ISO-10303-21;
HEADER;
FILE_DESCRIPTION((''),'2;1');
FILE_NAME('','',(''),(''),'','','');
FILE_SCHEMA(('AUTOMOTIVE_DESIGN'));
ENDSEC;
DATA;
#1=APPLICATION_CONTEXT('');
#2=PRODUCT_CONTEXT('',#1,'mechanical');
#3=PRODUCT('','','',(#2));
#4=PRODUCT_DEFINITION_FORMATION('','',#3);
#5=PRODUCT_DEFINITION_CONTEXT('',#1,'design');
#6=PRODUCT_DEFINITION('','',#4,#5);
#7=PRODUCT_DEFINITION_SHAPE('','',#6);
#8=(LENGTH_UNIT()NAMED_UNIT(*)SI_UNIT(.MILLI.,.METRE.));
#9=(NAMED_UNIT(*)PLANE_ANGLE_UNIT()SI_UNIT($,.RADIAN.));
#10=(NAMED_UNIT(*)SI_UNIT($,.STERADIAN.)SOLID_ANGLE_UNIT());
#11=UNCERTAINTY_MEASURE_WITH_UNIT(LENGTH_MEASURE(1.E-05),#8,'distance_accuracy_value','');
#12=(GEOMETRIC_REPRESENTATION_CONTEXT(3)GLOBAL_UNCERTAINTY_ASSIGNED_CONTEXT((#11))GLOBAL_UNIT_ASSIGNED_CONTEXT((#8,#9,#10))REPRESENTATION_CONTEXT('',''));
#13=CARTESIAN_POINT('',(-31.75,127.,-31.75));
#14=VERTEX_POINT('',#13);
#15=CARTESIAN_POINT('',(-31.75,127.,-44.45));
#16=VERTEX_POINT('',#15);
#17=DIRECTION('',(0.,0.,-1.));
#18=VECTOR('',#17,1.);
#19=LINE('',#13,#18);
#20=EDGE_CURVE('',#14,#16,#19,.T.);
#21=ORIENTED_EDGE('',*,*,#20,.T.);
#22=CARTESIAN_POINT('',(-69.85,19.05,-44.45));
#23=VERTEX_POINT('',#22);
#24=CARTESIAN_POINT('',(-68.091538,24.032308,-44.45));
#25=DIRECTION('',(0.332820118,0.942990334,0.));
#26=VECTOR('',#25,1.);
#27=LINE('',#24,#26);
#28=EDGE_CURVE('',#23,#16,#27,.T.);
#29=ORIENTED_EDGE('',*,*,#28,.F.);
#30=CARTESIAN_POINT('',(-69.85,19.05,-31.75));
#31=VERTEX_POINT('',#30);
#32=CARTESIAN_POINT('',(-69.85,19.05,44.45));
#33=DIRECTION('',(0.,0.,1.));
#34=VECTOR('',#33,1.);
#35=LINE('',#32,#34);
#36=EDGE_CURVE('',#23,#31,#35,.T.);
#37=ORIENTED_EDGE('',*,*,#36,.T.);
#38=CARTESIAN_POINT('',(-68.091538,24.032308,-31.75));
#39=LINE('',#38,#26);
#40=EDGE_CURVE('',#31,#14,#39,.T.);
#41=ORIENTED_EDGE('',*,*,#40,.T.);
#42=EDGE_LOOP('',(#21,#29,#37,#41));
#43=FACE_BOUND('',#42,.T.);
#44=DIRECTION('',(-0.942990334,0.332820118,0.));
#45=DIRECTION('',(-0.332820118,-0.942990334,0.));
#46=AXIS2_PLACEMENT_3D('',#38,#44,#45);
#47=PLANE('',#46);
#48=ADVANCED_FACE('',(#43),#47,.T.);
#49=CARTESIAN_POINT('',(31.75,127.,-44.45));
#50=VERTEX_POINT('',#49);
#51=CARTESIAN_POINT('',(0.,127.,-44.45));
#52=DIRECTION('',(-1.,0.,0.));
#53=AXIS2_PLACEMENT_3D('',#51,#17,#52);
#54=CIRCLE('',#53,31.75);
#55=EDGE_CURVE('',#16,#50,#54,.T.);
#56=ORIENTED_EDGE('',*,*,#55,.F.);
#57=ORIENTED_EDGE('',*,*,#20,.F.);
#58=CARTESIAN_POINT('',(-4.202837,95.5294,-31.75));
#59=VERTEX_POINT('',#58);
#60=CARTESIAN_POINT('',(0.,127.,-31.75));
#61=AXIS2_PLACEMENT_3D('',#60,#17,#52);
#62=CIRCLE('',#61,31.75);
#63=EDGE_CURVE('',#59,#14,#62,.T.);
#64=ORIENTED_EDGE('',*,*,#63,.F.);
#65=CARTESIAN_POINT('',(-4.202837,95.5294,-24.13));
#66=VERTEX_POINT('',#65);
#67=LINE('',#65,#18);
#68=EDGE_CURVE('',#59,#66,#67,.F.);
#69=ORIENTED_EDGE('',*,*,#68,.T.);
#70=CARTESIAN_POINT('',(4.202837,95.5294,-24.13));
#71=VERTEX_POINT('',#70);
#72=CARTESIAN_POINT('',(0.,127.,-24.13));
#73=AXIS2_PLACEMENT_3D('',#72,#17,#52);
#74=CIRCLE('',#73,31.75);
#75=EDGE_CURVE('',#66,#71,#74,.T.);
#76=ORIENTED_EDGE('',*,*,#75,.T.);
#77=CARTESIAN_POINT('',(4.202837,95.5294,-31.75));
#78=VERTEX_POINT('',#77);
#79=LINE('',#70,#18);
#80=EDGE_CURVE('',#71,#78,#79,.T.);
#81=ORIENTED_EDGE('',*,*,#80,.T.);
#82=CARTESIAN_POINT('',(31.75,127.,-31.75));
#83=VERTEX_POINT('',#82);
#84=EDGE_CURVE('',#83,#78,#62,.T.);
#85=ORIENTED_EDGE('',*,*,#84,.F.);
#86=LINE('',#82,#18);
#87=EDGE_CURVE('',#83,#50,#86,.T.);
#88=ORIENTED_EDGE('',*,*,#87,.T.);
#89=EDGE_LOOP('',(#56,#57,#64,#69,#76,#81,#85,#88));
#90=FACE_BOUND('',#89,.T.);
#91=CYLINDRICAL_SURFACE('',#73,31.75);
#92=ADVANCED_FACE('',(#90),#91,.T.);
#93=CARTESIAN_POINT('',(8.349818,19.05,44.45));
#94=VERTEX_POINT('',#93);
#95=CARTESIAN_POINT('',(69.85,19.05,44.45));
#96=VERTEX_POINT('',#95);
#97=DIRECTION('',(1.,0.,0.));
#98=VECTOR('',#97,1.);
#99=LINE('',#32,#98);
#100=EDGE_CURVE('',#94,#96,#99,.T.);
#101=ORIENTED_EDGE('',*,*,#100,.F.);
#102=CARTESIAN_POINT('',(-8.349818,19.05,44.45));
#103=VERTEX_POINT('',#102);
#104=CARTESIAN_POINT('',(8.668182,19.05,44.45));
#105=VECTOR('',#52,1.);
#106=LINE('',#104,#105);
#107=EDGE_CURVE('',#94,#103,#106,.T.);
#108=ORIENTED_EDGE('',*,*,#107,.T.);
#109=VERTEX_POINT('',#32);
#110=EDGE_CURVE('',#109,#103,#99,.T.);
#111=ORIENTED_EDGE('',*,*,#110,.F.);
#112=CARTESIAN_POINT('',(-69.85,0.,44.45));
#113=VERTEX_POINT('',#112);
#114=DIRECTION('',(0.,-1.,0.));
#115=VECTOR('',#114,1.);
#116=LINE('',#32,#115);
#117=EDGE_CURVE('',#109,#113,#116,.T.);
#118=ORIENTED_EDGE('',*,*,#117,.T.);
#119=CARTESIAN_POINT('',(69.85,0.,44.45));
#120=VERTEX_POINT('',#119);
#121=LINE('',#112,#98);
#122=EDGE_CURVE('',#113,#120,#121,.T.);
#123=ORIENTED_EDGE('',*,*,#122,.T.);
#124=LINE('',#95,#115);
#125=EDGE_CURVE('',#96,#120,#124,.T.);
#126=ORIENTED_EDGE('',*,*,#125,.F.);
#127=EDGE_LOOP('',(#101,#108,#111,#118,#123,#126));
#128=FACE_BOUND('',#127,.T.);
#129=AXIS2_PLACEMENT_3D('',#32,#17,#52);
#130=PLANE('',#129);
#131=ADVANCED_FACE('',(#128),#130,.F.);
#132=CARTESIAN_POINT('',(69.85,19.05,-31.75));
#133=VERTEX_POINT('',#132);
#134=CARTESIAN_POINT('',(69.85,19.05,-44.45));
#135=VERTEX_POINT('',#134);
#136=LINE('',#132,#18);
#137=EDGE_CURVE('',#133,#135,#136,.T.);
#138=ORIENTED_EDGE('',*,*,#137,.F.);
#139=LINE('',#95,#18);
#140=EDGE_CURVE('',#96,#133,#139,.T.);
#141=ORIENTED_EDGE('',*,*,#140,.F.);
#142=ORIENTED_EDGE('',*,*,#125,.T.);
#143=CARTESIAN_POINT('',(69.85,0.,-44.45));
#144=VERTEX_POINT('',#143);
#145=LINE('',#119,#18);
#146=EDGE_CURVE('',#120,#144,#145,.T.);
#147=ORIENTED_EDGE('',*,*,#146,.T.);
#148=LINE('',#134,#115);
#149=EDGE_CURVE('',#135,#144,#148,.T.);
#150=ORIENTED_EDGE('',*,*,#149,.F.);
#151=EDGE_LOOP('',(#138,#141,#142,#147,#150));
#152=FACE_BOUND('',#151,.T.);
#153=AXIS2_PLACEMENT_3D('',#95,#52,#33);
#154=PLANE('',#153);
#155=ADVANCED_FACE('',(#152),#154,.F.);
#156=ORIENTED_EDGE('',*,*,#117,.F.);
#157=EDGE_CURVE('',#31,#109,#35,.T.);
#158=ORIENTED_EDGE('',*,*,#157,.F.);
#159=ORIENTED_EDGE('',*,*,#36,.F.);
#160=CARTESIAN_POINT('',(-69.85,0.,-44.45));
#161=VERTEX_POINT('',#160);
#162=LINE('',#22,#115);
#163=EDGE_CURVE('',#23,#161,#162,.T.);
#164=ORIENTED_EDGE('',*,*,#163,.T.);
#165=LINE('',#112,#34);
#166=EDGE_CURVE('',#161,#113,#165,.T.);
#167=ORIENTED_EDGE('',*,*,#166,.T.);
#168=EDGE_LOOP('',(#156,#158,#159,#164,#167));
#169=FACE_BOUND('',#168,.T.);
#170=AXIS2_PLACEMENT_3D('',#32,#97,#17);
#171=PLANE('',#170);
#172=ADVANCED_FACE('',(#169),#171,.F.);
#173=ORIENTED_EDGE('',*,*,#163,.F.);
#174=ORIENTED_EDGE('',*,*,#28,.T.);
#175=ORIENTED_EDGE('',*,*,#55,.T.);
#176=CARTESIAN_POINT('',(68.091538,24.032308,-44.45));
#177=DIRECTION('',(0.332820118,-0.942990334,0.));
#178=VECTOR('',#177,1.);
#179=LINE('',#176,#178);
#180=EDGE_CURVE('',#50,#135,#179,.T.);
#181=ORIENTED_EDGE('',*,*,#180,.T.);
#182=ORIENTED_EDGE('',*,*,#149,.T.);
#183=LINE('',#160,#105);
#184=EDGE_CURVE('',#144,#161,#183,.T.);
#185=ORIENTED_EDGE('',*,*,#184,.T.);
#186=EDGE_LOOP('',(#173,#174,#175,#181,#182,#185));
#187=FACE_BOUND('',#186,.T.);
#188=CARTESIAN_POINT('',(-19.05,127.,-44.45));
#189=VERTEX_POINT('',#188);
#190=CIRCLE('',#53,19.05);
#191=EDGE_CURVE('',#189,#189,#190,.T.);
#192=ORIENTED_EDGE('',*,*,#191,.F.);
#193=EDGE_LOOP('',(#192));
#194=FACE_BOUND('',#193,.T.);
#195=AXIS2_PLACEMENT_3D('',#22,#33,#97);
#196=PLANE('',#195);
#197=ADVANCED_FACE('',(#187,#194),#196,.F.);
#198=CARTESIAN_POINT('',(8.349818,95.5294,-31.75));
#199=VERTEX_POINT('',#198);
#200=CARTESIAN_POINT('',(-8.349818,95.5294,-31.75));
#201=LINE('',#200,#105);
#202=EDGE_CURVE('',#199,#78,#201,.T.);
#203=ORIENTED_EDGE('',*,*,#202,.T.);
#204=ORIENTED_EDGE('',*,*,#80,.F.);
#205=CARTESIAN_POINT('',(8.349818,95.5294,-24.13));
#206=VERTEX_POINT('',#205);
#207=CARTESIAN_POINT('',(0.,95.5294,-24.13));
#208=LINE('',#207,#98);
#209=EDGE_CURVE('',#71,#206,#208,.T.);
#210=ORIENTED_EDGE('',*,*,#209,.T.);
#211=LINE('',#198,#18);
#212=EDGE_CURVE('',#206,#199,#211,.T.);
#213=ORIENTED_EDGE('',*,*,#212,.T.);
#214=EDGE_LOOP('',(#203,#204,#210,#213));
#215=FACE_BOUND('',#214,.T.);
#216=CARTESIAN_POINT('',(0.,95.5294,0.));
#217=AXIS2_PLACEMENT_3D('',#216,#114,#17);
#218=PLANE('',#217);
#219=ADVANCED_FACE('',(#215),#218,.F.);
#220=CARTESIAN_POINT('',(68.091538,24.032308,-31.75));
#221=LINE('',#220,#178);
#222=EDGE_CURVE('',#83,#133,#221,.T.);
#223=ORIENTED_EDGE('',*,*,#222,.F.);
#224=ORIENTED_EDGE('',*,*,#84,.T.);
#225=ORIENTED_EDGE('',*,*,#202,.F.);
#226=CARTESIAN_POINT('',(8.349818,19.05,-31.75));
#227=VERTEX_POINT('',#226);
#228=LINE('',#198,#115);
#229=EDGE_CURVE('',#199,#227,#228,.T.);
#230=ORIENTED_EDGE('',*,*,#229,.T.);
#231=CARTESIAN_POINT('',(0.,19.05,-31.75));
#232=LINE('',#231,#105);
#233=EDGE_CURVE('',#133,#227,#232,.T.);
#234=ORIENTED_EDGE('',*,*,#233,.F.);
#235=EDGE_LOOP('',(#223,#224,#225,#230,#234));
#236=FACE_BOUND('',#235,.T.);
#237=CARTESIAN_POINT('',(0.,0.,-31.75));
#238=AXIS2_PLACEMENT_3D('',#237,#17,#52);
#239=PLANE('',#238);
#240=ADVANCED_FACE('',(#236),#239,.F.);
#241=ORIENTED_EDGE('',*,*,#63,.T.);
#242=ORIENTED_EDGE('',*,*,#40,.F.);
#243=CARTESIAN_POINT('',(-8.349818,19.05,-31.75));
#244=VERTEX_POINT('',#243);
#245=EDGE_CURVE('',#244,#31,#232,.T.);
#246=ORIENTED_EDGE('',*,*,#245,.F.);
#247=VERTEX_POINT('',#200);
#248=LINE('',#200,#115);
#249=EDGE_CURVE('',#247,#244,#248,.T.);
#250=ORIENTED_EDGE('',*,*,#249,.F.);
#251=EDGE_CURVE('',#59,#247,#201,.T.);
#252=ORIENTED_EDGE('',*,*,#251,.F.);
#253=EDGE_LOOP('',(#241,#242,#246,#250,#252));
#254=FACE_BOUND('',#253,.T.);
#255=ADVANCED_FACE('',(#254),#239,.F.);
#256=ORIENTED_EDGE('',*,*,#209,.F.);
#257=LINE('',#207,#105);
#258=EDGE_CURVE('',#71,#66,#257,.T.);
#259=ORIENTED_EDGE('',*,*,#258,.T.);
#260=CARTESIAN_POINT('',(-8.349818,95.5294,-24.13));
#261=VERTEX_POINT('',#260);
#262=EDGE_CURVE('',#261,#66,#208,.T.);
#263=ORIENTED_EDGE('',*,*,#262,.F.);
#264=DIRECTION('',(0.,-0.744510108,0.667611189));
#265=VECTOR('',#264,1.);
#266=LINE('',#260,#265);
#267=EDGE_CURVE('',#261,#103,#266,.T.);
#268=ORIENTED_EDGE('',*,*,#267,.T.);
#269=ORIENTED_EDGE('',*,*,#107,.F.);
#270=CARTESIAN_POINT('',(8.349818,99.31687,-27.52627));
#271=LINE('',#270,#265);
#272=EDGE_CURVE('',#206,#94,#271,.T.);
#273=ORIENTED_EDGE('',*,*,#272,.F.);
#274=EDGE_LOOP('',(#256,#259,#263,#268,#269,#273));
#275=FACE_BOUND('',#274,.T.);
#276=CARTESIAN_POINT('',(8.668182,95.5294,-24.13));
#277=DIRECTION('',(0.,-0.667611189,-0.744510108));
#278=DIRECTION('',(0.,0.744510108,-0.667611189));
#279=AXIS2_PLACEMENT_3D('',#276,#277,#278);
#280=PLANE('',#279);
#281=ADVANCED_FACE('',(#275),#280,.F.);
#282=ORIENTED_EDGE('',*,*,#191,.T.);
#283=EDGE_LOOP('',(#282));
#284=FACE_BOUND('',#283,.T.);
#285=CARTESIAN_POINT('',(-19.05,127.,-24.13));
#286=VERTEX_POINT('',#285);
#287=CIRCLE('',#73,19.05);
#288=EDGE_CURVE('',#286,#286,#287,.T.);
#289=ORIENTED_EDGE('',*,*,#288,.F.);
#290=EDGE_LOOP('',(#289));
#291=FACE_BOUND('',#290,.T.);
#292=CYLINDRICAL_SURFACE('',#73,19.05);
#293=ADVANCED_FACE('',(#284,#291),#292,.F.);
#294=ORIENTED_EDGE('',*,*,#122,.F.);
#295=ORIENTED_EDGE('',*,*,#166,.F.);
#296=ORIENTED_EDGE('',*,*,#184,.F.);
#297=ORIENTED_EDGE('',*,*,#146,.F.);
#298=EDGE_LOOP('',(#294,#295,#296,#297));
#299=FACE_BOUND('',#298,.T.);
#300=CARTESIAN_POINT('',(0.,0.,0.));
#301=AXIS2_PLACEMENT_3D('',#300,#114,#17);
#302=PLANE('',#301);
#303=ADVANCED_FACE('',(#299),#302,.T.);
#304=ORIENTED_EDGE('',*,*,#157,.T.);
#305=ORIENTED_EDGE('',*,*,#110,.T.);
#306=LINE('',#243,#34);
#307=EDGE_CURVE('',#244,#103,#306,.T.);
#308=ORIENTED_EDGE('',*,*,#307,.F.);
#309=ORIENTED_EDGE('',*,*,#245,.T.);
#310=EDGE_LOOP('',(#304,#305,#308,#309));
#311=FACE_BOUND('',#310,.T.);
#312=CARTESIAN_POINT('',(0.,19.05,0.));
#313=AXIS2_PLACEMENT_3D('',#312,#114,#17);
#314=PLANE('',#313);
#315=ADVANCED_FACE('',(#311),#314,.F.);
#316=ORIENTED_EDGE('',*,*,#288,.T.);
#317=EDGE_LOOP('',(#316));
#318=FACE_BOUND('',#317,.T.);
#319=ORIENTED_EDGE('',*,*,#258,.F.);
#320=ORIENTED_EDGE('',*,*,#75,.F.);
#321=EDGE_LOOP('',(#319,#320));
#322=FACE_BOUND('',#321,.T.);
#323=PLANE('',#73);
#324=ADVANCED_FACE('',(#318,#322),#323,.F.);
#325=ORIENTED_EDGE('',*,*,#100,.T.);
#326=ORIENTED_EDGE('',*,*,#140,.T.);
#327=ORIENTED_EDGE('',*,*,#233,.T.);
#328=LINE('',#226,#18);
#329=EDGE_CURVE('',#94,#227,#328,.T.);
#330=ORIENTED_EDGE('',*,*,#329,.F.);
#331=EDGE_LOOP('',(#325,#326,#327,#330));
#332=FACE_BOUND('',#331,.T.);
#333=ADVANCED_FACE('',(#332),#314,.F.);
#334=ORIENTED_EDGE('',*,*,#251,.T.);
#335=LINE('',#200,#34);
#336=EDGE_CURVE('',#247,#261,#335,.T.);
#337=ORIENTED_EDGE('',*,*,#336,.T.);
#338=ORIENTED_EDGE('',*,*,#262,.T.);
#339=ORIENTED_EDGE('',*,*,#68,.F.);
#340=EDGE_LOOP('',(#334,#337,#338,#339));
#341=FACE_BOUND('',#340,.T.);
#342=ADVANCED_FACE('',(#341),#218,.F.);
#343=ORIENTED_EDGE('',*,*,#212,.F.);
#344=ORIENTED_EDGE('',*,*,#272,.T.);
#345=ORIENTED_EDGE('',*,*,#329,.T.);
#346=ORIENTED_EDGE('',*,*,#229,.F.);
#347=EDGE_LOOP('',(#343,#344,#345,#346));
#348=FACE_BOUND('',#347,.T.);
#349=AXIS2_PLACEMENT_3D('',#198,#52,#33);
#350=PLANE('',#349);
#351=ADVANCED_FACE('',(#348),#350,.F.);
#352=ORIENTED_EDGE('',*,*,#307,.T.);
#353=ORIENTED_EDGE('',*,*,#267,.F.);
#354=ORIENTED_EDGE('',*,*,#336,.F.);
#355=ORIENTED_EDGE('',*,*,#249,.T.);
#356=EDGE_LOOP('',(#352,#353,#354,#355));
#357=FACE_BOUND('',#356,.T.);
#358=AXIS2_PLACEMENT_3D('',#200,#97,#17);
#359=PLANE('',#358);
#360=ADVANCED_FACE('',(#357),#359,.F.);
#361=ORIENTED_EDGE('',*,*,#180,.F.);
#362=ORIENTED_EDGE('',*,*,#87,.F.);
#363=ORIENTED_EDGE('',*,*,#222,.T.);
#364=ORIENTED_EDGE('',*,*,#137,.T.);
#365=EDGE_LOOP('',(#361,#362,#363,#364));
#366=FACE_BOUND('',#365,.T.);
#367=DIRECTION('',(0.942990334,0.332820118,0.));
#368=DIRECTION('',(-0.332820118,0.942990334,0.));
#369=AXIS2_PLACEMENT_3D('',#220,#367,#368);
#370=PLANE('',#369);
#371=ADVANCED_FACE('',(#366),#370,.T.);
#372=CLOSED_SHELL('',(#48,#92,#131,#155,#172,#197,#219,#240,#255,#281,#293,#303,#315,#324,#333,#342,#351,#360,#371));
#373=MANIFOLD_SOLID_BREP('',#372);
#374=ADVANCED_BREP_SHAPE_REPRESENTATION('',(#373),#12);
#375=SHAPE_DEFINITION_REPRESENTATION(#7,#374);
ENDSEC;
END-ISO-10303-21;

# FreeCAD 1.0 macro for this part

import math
import FreeCAD as App
import Part
import Sketcher
from FreeCAD import Vector
Q = App.Units.Quantity


def add_polygon(sketch, points):
    """Adds a closed chain of lines whose ends are joined by coincident constraints."""
    first, n = sketch.GeometryCount, len(points)
    for a, b in zip(points, points[1:] + points[:1]):
        sketch.addGeometry(Part.LineSegment(App.Vector(*a, 0), App.Vector(*b, 0)), False)
    for i in range(n):
        sketch.addConstraint(Sketcher.Constraint("Coincident", first + i, 2, first + (i + 1) % n, 1))

doc = App.newDocument("Part")
body = doc.addObject("PartDesign::Body", "Body")

# Sketch on XZ plane
sketch1 = doc.addObject("Sketcher::SketchObject", "Sketch")
body.addObject(sketch1)
sketch1.AttachmentSupport = (doc.XZ_Plane, [""])
sketch1.MapMode = "FlatFace"
add_polygon(sketch1, [(-70, -44), (-70, 44), (70, 44), (70, -44)])  # lines 0-3
sketch1.addConstraint(Sketcher.Constraint("Vertical", 0))
sketch1.addConstraint(Sketcher.Constraint("Horizontal", 1))
sketch1.addConstraint(Sketcher.Constraint("Vertical", 2))
sketch1.addConstraint(Sketcher.Constraint("Horizontal", 3))
sketch1.addConstraint(Sketcher.Constraint("Symmetric", 0, 2, 2, 2, -1, 1))
sketch1.addConstraint(Sketcher.Constraint("DistanceX", 1, 1, 1, 2, Q("5.5 in")))
sketch1.addConstraint(Sketcher.Constraint("DistanceY", 0, 1, 0, 2, Q("3.5 in")))
pad1 = doc.addObject("PartDesign::Pad", "Pad")
body.addObject(pad1)
pad1.Profile = sketch1
pad1.Length = Q("0.75 in")
pad1.Reversed = True
body2 = doc.addObject("PartDesign::Body", "Body001")

# Sketch on XY plane
sketch2 = doc.addObject("Sketcher::SketchObject", "Sketch001")
body2.addObject(sketch2)
sketch2.AttachmentSupport = (doc.getObject("XY_Plane001"), [""])
sketch2.MapMode = "FlatFace"
sketch2.AttachmentOffset = App.Placement(Vector(0, 0, -1.75 * 25.4), App.Rotation())
sketch2.addGeometry(Part.Circle(Vector(0, 127, 0), Vector(0, 0, 1), 32), False)
sketch2.addGeometry(Part.Circle(Vector(0, 127, 0), Vector(0, 0, 1), 19), False)
sketch2.addConstraint(Sketcher.Constraint("Coincident", 1, 3, 0, 3))
sketch2.addConstraint(Sketcher.Constraint("PointOnObject", 0, 3, -2))
sketch2.addConstraint(Sketcher.Constraint("Diameter", 0, Q("2.5 in")))
sketch2.addConstraint(Sketcher.Constraint("Diameter", 1, Q("1.5 in")))
sketch2.addConstraint(Sketcher.Constraint("DistanceY", -1, 1, 0, 3, Q("5 in")))
pad2 = doc.addObject("PartDesign::Pad", "Pad001")
body2.addObject(pad2)
pad2.Profile = sketch2
pad2.Length = Q("0.8 in")
body.AllowCompound = True
doc.recompute()

boolean = doc.addObject("PartDesign::Boolean", "Boolean")
body.addObject(boolean)
boolean.Type = "Fuse"
boolean.addObjects([body2])

# Sketch on XY plane
sketch3 = doc.addObject("Sketcher::SketchObject", "Sketch002")
body.addObject(sketch3)
sketch3.AttachmentSupport = (doc.XY_Plane, [""])
sketch3.MapMode = "FlatFace"
sketch3.AttachmentOffset = App.Placement(Vector(0, 0, -1.75 * 25.4), App.Rotation())
sketch3.addGeometry(Part.ArcOfCircle(Part.Circle(Vector(0, 127, 0), Vector(0, 0, 1), 32), math.radians(180), math.radians(360)), False)
sketch3.addGeometry(Part.LineSegment(Vector(32, 127, 0), Vector(70, 19, 0)), False)
sketch3.addGeometry(Part.LineSegment(Vector(70, 19, 0), Vector(-70, 19, 0)), False)
sketch3.addGeometry(Part.LineSegment(Vector(-70, 19, 0), Vector(-32, 127, 0)), False)
sketch3.addConstraint(Sketcher.Constraint("Coincident", 0, 2, 1, 1))
sketch3.addConstraint(Sketcher.Constraint("Coincident", 1, 2, 2, 1))
sketch3.addConstraint(Sketcher.Constraint("Coincident", 2, 2, 3, 1))
sketch3.addConstraint(Sketcher.Constraint("Coincident", 3, 2, 0, 1))
sketch3.addConstraint(Sketcher.Constraint("Horizontal", 2))
sketch3.addConstraint(Sketcher.Constraint("Symmetric", 0, 2, 3, 2, -2))
sketch3.addConstraint(Sketcher.Constraint("Equal", 1, 3))
sketch3.addConstraint(Sketcher.Constraint("Radius", 0, Q("1.25 in")))
sketch3.addConstraint(Sketcher.Constraint("DistanceX", 2, 2, 2, 1, Q("5.5 in")))
sketch3.addConstraint(Sketcher.Constraint("DistanceY", -1, 1, 0, 3, Q("5 in")))
sketch3.addConstraint(Sketcher.Constraint("DistanceY", -1, 1, 0, 2, Q("5 in")))
sketch3.addConstraint(Sketcher.Constraint("DistanceY", -1, 1, 1, 2, Q("0.75 in")))
pad3 = doc.addObject("PartDesign::Pad", "Pad002")
body.addObject(pad3)
pad3.Profile = sketch3
pad3.Length = Q("0.5 in")

# Sketch on XZ plane
sketch4 = doc.addObject("Sketcher::SketchObject", "Sketch003")
body.addObject(sketch4)
sketch4.AttachmentSupport = (doc.XZ_Plane, [""])
sketch4.MapMode = "FlatFace"
sketch4.AttachmentOffset = App.Placement(Vector(0, 0, -0.75 * 25.4), App.Rotation())
add_polygon(sketch4, [(-8, -32), (-8, 44), (8, 44), (8, -32)])  # lines 0-3
sketch4.addConstraint(Sketcher.Constraint("Vertical", 0))
sketch4.addConstraint(Sketcher.Constraint("Horizontal", 1))
sketch4.addConstraint(Sketcher.Constraint("Vertical", 2))
sketch4.addConstraint(Sketcher.Constraint("Horizontal", 3))
sketch4.addConstraint(Sketcher.Constraint("DistanceY", 0, 1, 0, 2, Q("3 in")))
sketch4.addConstraint(Sketcher.Constraint("DistanceY", -1, 1, 0, 2, Q("1.75 in")))
sketch4.addConstraint(Sketcher.Constraint("DistanceX", 1, 1, 1, 2, Q("16.699636 mm")))
sketch4.addConstraint(Sketcher.Constraint("DistanceX", 0, 2, -1, 1, Q("8.349818 mm")))
pad4 = doc.addObject("PartDesign::Pad", "Pad003")
body.addObject(pad4)
pad4.Profile = sketch4
pad4.Length = Q("3.011 in")
pad4.Reversed = True

# Sketch on YZ plane
sketch5 = doc.addObject("Sketcher::SketchObject", "Sketch004")
body.addObject(sketch5)
sketch5.AttachmentSupport = (doc.YZ_Plane, [""])
sketch5.MapMode = "FlatFace"
sketch5.AttachmentOffset = App.Placement(Vector(0, 0, -8.349818), App.Rotation())
add_polygon(sketch5, [(96, -24), (19, 44), (96, 44)])  # lines 0-2
sketch5.addConstraint(Sketcher.Constraint("Horizontal", 1))
sketch5.addConstraint(Sketcher.Constraint("Vertical", 2))
sketch5.addConstraint(Sketcher.Constraint("DistanceY", 2, 2, 2, 1, Q("2.7 in")))
sketch5.addConstraint(Sketcher.Constraint("DistanceX", 1, 1, 1, 2, Q("3.011 in")))
sketch5.addConstraint(Sketcher.Constraint("DistanceX", -1, 1, 0, 2, Q("0.75 in")))
sketch5.addConstraint(Sketcher.Constraint("DistanceY", -1, 1, 0, 2, Q("1.75 in")))
pocket1 = doc.addObject("PartDesign::Pocket", "Pocket")
body.addObject(pocket1)
pocket1.Profile = sketch5
pocket1.Length = Q("0.67 in")
pocket1.Reversed = True

doc.recompute()
